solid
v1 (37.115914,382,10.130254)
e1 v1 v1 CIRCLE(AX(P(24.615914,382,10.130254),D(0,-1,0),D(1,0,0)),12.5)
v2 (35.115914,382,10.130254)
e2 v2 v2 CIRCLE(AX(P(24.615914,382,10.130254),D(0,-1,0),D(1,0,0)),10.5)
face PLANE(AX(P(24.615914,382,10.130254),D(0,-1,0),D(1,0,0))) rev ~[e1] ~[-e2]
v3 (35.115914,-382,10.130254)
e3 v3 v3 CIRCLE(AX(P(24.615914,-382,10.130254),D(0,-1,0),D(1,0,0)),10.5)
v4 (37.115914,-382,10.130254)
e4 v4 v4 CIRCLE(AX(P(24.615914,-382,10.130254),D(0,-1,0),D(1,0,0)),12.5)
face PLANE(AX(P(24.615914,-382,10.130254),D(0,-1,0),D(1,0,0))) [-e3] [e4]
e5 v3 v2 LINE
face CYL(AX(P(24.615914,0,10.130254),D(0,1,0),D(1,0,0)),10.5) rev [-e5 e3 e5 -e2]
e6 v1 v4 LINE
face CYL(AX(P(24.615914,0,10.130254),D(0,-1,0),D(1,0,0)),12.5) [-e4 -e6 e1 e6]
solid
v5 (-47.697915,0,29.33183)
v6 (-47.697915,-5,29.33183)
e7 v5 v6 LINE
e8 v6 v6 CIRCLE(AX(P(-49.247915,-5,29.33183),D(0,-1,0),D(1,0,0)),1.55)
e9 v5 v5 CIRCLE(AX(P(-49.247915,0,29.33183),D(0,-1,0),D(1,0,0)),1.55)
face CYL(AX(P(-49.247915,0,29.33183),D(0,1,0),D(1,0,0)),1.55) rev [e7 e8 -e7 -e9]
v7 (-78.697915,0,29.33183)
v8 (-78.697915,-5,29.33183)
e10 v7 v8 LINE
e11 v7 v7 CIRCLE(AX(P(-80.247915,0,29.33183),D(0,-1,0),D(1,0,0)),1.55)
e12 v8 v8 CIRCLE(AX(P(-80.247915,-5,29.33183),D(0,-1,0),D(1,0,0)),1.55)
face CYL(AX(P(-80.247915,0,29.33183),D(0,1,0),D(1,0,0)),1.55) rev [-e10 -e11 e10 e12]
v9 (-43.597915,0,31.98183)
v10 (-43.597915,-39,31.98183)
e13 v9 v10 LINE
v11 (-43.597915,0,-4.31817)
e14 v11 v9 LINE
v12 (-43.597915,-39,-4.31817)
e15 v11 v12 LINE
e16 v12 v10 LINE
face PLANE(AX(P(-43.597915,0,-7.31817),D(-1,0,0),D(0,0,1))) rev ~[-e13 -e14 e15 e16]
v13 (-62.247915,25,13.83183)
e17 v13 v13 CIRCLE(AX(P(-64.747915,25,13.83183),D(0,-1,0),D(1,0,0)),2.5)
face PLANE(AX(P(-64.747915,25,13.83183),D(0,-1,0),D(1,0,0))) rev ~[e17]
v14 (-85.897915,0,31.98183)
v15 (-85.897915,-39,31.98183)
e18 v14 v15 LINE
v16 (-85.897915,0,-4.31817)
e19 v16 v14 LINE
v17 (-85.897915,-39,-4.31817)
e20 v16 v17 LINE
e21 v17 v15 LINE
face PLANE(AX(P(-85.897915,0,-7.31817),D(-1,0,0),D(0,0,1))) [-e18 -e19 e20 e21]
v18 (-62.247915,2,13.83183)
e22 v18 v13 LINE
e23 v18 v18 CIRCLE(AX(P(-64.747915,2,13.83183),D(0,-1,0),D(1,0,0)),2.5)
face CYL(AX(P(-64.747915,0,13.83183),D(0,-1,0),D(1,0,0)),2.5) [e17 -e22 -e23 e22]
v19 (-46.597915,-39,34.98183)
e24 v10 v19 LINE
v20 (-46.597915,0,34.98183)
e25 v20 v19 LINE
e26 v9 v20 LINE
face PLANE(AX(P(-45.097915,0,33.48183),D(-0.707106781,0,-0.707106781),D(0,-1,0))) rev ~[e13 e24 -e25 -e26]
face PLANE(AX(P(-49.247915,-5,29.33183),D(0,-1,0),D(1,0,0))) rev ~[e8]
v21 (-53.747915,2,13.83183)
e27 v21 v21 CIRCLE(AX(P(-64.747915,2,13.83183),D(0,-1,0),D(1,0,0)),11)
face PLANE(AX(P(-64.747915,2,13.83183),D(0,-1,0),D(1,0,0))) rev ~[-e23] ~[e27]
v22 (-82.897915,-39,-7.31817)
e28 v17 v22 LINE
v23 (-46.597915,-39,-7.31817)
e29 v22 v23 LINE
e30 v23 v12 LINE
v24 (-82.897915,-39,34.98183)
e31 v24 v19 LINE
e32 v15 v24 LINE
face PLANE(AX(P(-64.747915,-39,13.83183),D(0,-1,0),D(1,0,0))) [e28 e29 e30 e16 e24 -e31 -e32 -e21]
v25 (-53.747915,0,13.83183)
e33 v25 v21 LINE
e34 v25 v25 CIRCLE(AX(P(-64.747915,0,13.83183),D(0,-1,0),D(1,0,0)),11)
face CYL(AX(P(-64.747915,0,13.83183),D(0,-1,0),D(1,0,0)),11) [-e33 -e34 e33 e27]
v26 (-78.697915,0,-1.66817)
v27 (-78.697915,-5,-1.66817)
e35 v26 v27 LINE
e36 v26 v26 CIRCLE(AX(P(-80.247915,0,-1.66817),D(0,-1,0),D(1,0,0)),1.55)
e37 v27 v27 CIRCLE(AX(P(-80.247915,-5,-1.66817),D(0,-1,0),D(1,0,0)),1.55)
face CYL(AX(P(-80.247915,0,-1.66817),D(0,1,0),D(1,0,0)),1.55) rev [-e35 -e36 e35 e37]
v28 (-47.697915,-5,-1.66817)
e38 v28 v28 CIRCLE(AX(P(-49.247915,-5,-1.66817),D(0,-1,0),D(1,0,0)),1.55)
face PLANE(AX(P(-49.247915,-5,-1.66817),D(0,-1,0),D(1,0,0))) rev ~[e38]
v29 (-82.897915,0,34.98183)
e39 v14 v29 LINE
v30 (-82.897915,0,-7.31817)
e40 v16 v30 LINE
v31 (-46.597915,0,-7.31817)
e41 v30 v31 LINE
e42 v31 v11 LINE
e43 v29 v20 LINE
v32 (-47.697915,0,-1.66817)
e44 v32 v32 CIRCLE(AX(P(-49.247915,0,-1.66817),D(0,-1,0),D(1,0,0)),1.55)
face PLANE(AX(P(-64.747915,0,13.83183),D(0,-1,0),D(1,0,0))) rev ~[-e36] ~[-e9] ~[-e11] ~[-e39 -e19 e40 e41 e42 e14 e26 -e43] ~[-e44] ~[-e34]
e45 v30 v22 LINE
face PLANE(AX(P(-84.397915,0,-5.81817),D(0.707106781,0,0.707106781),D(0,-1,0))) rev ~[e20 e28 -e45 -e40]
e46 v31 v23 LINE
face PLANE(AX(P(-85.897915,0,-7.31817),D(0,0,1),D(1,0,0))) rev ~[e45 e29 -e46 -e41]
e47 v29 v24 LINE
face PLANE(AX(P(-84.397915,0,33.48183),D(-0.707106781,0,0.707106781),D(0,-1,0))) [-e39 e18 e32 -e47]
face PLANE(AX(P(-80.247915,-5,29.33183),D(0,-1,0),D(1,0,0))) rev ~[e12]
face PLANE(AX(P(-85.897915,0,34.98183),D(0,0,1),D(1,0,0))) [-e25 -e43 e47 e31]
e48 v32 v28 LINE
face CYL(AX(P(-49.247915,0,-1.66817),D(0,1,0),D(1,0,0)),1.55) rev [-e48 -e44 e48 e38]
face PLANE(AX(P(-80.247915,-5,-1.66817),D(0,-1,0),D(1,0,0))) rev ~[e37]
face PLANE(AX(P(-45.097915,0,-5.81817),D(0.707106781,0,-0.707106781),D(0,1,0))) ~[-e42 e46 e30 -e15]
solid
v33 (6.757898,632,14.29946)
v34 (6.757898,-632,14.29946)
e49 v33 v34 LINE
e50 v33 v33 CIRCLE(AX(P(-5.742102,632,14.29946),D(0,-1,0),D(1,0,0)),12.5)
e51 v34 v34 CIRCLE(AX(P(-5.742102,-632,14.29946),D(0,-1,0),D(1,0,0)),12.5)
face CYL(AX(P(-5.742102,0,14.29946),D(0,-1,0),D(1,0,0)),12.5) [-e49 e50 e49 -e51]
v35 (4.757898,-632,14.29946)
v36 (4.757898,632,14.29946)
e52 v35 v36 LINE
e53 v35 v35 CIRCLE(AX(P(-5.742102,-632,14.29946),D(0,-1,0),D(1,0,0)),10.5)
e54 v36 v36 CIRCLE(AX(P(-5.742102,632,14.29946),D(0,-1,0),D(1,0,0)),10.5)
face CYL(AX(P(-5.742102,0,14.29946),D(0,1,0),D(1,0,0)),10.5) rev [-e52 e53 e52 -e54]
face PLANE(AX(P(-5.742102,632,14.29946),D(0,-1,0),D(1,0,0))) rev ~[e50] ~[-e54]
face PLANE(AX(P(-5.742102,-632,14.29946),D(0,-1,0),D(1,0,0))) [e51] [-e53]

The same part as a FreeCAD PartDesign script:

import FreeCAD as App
import Part
import Sketcher
from FreeCAD import Vector
Q = App.Units.Quantity


def edges_at(feature, points):
    """Names of the edges that pass closest to the given points."""
    edges = feature.Shape.Edges
    near = lambda p: min(range(len(edges)), key=lambda i: edges[i].distToShape(Part.Vertex(*p))[0])
    return sorted({f"Edge{near(p) + 1}" for p in points})

doc = App.newDocument("Part")
body = doc.addObject("PartDesign::Body", "Body")

sketch1 = body.newObject("Sketcher::SketchObject", "Sketch")
sketch1.AttachmentSupport = (doc.getObject("XZ_Plane"), [""])
sketch1.MapMode = "FlatFace"
sketch1.addGeometry([
    Part.LineSegment(Vector(-86, 35, 0), Vector(-86, -7, 0)),
    Part.LineSegment(Vector(-86, -7, 0), Vector(-44, -7, 0)),
    Part.LineSegment(Vector(-44, -7, 0), Vector(-44, 35, 0)),
    Part.LineSegment(Vector(-44, 35, 0), Vector(-86, 35, 0)),
], False)
sketch1.addConstraint([
    Sketcher.Constraint("Coincident", 0, 2, 1, 1),
    Sketcher.Constraint("Coincident", 1, 2, 2, 1),
    Sketcher.Constraint("Coincident", 2, 2, 3, 1),
    Sketcher.Constraint("Coincident", 3, 2, 0, 1),
    Sketcher.Constraint("Vertical", 0),
    Sketcher.Constraint("Horizontal", 1),
    Sketcher.Constraint("Vertical", 2),
    Sketcher.Constraint("Horizontal", 3),
    Sketcher.Constraint("Equal", 3, 0),
    Sketcher.Constraint("DistanceX", 1, 1, 1, 2, Q("42.3 mm")),
    Sketcher.Constraint("DistanceY", 0, 2, -1, 1, Q("7.31817 mm")),
    Sketcher.Constraint("DistanceX", 0, 2, -1, 1, Q("85.897915 mm")),
])
pad1 = body.newObject("PartDesign::Pad", "Pad")
pad1.Profile = sketch1
pad1.Length = 39
doc.recompute()

chamfer = body.newObject("PartDesign::Chamfer", "Chamfer")
chamfer.Base = (pad1, edges_at(pad1, [
    (-43.598, -19.5, 34.982),
    (-85.898, -19.5, 34.982),
    (-43.598, -19.5, -7.318),
    (-85.898, -19.5, -7.318),
]))
chamfer.Size = 3

sketch2 = body.newObject("Sketcher::SketchObject", "Sketch001")
sketch2.AttachmentSupport = (doc.getObject("XZ_Plane"), [""])
sketch2.MapMode = "FlatFace"
sketch2.addGeometry([
    Part.Circle(Vector(-49.2, 29.3, 0), Vector(0, 0, 1), 1.6),
    Part.Circle(Vector(-80.2, 29.3, 0), Vector(0, 0, 1), 1.6),
    Part.Circle(Vector(-80.2, -1.7, 0), Vector(0, 0, 1), 1.6),
    Part.Circle(Vector(-49.2, -1.7, 0), Vector(0, 0, 1), 1.6),
], False)
sketch2.addConstraint([
    Sketcher.Constraint("Equal", 0, 1),
    Sketcher.Constraint("Equal", 1, 2),
    Sketcher.Constraint("Equal", 2, 3),
    Sketcher.Constraint("Horizontal", 0, 3, 1, 3),
    Sketcher.Constraint("Horizontal", 2, 3, 3, 3),
    Sketcher.Constraint("Vertical", 1, 3, 2, 3),
    Sketcher.Constraint("Vertical", 0, 3, 3, 3),
    Sketcher.Constraint("Diameter", 0, Q("3.1 mm")),
    Sketcher.Constraint("DistanceX", 1, 3, 0, 3, Q("31 mm")),
    Sketcher.Constraint("DistanceY", 2, 3, 1, 3, Q("31 mm")),
    Sketcher.Constraint("DistanceY", -1, 1, 0, 3, Q("29.33183 mm")),
    Sketcher.Constraint("DistanceX", 0, 3, -1, 1, Q("49.247915 mm")),
])
pocket1 = body.newObject("PartDesign::Pocket", "Pocket")
pocket1.Profile = sketch2
pocket1.Length = 5
pocket1.Reversed = True

sketch3 = body.newObject("Sketcher::SketchObject", "Sketch002")
sketch3.AttachmentSupport = (doc.getObject("XZ_Plane"), [""])
sketch3.MapMode = "FlatFace"
sketch3.addGeometry(Part.Circle(Vector(-64.7, 13.8, 0), Vector(0, 0, 1), 2.5), False)
sketch3.addConstraint([
    Sketcher.Constraint("Diameter", 0, Q("5 mm")),
    Sketcher.Constraint("DistanceY", -1, 1, 0, 3, Q("13.83183 mm")),
    Sketcher.Constraint("DistanceX", 0, 3, -1, 1, Q("64.747915 mm")),
])
pad2 = body.newObject("PartDesign::Pad", "Pad001")
pad2.Profile = sketch3
pad2.Length = 25
pad2.Reversed = True

sketch4 = body.newObject("Sketcher::SketchObject", "Sketch003")
sketch4.AttachmentSupport = (doc.getObject("XZ_Plane"), [""])
sketch4.MapMode = "FlatFace"
sketch4.addGeometry([
    Part.Circle(Vector(-64.7, 13.8, 0), Vector(0, 0, 1), 11),
    Part.Circle(Vector(-64.7, 13.8, 0), Vector(0, 0, 1), 2.5),
], False)
sketch4.addConstraint([
    Sketcher.Constraint("Coincident", 1, 3, 0, 3),
    Sketcher.Constraint("Diameter", 0, Q("22 mm")),
    Sketcher.Constraint("Diameter", 1, Q("5 mm")),
    Sketcher.Constraint("DistanceY", -1, 1, 0, 3, Q("13.83183 mm")),
    Sketcher.Constraint("DistanceX", 0, 3, -1, 1, Q("64.747915 mm")),
])
pad3 = body.newObject("PartDesign::Pad", "Pad002")
pad3.Profile = sketch4
pad3.Length = 2
pad3.Reversed = True
body2 = doc.addObject("PartDesign::Body", "Body001")

sketch5 = body2.newObject("Sketcher::SketchObject", "Sketch004")
sketch5.AttachmentSupport = (doc.getObject("XZ_Plane001"), [""])
sketch5.MapMode = "FlatFace"
sketch5.addGeometry([
    Part.Circle(Vector(-6, 14, 0), Vector(0, 0, 1), 12),
    Part.Circle(Vector(-6, 14, 0), Vector(0, 0, 1), 10),
], False)
sketch5.addConstraint([
    Sketcher.Constraint("Coincident", 1, 3, 0, 3),
    Sketcher.Constraint("Diameter", 0, Q("25 mm")),
    Sketcher.Constraint("Diameter", 1, Q("21 mm")),
    Sketcher.Constraint("DistanceY", -1, 1, 0, 3, Q("14.29946 mm")),
    Sketcher.Constraint("DistanceX", 0, 3, -1, 1, Q("5.742102 mm")),
])
pad4 = body2.newObject("PartDesign::Pad", "Pad003")
pad4.Profile = sketch5
pad4.Length = 1264
pad4.Midplane = True
body3 = doc.addObject("PartDesign::Body", "Body002")

sketch6 = body3.newObject("Sketcher::SketchObject", "Sketch005")
sketch6.AttachmentSupport = (doc.getObject("XZ_Plane002"), [""])
sketch6.MapMode = "FlatFace"
sketch6.addGeometry([
    Part.Circle(Vector(25, 10, 0), Vector(0, 0, 1), 12),
    Part.Circle(Vector(25, 10, 0), Vector(0, 0, 1), 10),
], False)
sketch6.addConstraint([
    Sketcher.Constraint("Coincident", 1, 3, 0, 3),
    Sketcher.Constraint("Diameter", 0, Q("25 mm")),
    Sketcher.Constraint("Diameter", 1, Q("21 mm")),
    Sketcher.Constraint("DistanceX", -1, 1, 0, 3, Q("24.615914 mm")),
    Sketcher.Constraint("DistanceY", -1, 1, 0, 3, Q("10.130254 mm")),
])
pad5 = body3.newObject("PartDesign::Pad", "Pad004")
pad5.Profile = sketch6
pad5.Length = 764
pad5.Midplane = True

doc.recompute()
